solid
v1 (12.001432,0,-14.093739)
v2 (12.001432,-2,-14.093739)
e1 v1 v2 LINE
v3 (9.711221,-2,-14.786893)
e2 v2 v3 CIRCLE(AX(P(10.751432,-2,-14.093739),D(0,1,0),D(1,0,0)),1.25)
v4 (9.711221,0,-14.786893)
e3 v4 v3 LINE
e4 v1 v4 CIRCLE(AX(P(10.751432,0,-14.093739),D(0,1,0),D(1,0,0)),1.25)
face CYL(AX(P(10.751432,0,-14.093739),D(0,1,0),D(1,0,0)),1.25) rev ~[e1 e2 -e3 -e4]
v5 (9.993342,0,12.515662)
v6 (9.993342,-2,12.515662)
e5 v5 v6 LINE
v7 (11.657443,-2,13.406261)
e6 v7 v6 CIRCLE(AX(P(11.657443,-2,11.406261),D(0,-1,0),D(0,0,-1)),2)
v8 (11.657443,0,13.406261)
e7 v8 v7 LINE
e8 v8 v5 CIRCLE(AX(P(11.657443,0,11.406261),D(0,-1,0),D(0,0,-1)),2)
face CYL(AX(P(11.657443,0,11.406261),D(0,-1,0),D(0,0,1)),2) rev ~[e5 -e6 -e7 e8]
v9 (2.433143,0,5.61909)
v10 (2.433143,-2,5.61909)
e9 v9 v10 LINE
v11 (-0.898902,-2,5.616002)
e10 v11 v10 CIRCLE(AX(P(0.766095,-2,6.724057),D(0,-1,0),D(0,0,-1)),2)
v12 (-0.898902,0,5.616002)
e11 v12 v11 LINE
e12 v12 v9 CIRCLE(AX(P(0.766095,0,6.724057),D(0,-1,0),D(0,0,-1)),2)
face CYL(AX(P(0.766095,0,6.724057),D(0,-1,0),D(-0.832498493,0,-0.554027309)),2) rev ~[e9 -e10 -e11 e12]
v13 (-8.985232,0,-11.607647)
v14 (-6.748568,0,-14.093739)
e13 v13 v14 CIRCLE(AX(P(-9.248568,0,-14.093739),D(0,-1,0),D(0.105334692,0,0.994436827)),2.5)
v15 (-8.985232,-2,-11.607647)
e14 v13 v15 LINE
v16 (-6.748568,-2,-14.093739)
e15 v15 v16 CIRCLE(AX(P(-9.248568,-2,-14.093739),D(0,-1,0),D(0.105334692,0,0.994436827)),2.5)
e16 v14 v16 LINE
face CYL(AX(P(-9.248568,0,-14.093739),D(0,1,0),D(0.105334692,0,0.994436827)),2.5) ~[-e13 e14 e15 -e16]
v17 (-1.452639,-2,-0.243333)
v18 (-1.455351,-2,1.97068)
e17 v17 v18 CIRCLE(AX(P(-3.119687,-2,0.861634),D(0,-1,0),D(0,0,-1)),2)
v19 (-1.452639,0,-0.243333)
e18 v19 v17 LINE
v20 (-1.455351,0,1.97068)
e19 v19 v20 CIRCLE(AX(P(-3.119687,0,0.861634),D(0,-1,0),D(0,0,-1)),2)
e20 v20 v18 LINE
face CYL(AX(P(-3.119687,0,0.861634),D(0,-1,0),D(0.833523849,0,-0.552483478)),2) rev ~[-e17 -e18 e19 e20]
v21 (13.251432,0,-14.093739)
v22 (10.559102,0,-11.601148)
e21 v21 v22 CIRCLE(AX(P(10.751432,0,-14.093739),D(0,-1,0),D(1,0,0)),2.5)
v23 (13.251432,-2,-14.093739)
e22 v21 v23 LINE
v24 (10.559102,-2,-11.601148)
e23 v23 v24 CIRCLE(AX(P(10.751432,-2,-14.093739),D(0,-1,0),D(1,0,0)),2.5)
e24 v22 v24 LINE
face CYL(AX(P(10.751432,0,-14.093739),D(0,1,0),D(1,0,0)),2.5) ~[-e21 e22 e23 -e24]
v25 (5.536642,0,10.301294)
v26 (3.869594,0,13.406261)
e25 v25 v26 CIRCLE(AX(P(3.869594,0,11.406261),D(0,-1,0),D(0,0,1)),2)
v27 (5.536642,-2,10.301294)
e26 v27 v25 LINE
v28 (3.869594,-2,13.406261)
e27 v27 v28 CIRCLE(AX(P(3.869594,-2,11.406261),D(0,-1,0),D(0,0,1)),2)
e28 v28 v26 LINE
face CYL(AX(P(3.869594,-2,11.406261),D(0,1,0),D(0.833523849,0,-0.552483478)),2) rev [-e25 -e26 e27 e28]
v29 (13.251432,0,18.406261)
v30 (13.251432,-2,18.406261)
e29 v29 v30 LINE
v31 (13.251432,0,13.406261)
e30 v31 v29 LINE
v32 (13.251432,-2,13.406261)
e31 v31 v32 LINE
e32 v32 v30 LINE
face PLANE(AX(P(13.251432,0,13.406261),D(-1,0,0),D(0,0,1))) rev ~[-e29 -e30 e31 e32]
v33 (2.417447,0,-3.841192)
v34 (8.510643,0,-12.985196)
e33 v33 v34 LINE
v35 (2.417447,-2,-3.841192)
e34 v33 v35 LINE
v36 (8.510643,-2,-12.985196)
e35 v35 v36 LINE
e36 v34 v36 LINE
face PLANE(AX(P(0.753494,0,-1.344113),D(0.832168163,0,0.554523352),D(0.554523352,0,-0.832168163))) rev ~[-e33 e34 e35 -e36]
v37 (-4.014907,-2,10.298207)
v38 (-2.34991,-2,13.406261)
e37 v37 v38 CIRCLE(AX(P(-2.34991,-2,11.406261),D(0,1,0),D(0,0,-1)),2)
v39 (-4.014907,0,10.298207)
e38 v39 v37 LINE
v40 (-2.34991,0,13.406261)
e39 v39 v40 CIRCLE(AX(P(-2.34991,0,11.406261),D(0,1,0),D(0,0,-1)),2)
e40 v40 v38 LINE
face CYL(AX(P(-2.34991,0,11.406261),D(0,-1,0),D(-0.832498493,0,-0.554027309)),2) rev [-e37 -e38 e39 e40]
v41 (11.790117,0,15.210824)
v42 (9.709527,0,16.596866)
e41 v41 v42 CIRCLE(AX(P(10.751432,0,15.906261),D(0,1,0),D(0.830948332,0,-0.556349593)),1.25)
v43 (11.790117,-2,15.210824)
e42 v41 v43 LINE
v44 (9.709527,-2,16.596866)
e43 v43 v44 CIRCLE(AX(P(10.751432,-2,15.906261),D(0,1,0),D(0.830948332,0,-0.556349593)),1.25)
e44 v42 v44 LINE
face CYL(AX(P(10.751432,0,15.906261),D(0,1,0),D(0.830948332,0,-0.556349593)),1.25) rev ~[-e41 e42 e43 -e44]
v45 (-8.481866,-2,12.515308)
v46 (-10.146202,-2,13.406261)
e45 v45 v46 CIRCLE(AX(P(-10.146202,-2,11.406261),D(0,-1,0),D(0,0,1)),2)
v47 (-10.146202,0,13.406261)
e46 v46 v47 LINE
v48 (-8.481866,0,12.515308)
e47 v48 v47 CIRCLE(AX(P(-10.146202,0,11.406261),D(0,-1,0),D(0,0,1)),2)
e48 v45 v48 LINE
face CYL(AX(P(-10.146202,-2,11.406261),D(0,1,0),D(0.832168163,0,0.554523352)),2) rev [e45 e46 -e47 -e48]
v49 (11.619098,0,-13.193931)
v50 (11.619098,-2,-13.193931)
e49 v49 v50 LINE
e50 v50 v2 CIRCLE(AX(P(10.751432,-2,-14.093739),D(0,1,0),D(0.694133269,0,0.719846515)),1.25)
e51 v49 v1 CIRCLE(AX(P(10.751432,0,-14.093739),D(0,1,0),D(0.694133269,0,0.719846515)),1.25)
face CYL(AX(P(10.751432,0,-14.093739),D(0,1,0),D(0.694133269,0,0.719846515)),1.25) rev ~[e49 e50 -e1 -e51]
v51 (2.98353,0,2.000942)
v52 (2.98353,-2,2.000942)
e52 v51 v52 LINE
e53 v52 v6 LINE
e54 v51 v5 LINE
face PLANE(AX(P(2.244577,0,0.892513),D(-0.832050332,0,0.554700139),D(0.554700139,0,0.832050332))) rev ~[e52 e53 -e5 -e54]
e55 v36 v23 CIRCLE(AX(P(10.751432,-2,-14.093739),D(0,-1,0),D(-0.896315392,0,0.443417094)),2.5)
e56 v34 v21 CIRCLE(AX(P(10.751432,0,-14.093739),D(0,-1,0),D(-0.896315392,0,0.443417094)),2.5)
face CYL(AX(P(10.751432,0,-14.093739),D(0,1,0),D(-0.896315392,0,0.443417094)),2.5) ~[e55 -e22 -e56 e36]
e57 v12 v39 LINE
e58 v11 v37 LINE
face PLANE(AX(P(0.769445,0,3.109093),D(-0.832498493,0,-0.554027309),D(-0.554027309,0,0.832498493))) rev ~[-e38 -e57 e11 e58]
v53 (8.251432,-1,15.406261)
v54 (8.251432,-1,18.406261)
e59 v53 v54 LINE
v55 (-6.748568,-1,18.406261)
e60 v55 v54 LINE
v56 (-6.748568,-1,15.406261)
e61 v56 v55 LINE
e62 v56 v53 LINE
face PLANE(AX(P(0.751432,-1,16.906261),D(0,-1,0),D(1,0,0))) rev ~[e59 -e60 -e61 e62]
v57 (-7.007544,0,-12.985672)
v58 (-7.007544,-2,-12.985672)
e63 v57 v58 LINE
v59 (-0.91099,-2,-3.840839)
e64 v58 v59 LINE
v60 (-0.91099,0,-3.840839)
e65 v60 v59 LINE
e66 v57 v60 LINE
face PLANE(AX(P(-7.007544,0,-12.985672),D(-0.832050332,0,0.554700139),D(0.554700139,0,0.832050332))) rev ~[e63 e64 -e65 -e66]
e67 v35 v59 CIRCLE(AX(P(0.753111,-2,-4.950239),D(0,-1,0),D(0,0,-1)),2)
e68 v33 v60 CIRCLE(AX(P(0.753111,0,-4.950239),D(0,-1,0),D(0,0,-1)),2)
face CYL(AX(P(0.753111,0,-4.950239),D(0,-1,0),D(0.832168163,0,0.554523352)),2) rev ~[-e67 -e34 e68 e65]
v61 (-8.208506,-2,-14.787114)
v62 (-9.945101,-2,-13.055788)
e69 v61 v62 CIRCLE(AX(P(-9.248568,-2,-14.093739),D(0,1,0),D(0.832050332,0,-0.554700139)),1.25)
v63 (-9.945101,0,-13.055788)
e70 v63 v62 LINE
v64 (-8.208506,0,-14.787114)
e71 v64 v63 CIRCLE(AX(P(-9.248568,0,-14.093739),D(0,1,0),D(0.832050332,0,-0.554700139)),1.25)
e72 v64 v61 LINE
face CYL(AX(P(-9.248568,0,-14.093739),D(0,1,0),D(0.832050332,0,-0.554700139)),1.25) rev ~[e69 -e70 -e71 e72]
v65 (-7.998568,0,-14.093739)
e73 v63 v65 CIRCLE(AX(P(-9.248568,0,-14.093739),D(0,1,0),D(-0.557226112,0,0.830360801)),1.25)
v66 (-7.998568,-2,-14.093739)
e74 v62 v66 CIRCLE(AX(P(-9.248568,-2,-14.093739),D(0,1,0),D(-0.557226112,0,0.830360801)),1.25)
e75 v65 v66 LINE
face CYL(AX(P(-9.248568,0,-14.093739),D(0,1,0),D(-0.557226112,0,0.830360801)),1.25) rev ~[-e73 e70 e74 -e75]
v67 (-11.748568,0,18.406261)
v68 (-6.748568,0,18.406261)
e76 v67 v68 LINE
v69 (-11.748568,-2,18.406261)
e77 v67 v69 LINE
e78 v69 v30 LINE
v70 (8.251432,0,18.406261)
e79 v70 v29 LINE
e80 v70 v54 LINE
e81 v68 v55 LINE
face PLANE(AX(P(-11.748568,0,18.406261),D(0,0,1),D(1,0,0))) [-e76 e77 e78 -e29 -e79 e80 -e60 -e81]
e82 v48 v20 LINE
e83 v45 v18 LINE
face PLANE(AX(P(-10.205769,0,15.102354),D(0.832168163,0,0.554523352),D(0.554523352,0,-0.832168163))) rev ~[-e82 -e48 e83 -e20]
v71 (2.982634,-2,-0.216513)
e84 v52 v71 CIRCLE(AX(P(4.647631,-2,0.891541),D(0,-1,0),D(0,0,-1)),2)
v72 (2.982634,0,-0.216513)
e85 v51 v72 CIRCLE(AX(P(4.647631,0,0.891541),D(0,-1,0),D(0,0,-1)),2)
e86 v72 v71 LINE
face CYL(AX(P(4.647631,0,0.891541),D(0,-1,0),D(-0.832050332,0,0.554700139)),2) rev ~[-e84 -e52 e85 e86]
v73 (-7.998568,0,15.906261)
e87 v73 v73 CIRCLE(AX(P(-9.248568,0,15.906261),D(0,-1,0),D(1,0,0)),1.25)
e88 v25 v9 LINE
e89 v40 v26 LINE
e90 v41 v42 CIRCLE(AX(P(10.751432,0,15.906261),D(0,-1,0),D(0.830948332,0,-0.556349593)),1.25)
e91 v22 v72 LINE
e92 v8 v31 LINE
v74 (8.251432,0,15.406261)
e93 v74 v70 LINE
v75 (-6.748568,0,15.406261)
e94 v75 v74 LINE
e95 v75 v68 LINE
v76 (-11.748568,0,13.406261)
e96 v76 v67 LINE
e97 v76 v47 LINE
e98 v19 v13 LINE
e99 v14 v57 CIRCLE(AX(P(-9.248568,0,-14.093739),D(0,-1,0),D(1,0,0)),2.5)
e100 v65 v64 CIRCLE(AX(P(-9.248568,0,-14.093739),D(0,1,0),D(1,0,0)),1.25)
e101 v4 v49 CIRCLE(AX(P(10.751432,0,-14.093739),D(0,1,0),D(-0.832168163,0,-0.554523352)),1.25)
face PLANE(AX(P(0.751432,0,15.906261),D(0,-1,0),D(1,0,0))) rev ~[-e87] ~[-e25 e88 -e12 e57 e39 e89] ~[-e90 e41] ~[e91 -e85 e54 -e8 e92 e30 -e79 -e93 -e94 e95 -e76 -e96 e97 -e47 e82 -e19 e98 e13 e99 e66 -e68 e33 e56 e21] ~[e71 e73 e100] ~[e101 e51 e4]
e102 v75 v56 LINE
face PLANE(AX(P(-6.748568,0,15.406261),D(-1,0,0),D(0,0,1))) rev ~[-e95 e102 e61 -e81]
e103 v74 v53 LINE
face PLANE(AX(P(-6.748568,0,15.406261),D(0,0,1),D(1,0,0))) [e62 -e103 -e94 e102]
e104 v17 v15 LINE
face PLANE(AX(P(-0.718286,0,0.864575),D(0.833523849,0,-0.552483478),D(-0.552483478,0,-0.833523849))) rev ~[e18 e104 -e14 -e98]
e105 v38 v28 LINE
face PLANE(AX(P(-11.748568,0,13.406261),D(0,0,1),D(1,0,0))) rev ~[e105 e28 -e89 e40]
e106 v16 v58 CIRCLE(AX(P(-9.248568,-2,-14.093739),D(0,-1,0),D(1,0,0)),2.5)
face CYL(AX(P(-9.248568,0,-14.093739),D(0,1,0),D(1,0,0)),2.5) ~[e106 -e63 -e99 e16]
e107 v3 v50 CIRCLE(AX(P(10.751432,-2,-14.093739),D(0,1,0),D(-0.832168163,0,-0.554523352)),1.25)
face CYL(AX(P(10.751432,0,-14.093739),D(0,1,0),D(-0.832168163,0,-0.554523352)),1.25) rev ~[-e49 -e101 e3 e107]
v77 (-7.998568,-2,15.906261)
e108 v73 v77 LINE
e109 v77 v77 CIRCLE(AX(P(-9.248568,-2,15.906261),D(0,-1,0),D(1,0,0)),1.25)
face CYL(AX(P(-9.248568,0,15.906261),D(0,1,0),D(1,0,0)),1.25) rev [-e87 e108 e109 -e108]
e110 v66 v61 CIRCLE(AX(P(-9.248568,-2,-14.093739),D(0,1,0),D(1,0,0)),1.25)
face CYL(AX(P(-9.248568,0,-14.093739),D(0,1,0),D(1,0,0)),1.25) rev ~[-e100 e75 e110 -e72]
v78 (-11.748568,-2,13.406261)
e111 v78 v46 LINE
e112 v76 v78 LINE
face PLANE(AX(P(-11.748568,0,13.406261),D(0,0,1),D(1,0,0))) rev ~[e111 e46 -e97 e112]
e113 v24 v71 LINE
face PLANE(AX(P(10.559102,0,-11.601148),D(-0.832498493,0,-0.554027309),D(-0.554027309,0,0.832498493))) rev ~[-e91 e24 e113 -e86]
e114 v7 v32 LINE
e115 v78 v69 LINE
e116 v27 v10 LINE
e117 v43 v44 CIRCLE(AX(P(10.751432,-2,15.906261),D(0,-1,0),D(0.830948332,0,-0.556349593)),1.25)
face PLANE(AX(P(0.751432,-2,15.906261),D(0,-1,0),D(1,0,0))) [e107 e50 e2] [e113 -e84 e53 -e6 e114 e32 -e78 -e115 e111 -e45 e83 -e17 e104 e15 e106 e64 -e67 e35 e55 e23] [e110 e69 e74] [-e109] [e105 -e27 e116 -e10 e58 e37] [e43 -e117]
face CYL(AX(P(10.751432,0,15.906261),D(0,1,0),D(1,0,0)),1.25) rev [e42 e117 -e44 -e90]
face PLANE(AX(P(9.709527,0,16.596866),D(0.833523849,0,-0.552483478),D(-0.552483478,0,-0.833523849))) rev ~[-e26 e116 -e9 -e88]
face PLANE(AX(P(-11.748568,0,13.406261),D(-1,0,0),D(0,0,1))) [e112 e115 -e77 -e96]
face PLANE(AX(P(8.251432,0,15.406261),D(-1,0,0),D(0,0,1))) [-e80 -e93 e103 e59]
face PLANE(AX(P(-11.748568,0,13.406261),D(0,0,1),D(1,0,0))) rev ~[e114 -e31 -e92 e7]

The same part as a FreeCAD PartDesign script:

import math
import FreeCAD as App
import Part
import Sketcher


def edges_at(feature, points):
    """Names of the edges that pass closest to the given points."""
    edges = feature.Shape.Edges
    near = lambda p: min(range(len(edges)), key=lambda i: edges[i].distToShape(Part.Vertex(*p))[0])
    return sorted({f"Edge{near(p) + 1}" for p in points})

doc = App.newDocument("Part")
body = doc.addObject("PartDesign::Body", "Body")

# Sketch on XZ plane
sketch1 = body.newObject("Sketcher::SketchObject", "Sketch")
sketch1.AttachmentSupport = (doc.getObject("XZ_Plane"), [""])
sketch1.MapMode = "FlatFace"
sketch1.addGeometry(Part.LineSegment(App.Vector(-11.7, 18.4, 0), App.Vector(-11.7, 13.4, 0)), False)
sketch1.addGeometry(Part.LineSegment(App.Vector(-11.7, 13.4, 0), App.Vector(13.3, 13.4, 0)), False)
sketch1.addGeometry(Part.LineSegment(App.Vector(13.3, 13.4, 0), App.Vector(13.3, 18.4, 0)), False)
sketch1.addGeometry(Part.LineSegment(App.Vector(13.3, 18.4, 0), App.Vector(-11.7, 18.4, 0)), False)
sketch1.addGeometry(Part.Circle(App.Vector(-9.2, 15.9, 0), App.Vector(0, 0, 1), 1.2), False)
sketch1.addGeometry(Part.Circle(App.Vector(10.8, 15.9, 0), App.Vector(0, 0, 1), 1.2), False)
sketch1.addConstraint(Sketcher.Constraint("Coincident", 0, 2, 1, 1))
sketch1.addConstraint(Sketcher.Constraint("Coincident", 1, 2, 2, 1))
sketch1.addConstraint(Sketcher.Constraint("Coincident", 2, 2, 3, 1))
sketch1.addConstraint(Sketcher.Constraint("Coincident", 3, 2, 0, 1))
sketch1.addConstraint(Sketcher.Constraint("Vertical", 0))
sketch1.addConstraint(Sketcher.Constraint("Horizontal", 1))
sketch1.addConstraint(Sketcher.Constraint("Vertical", 2))
sketch1.addConstraint(Sketcher.Constraint("Horizontal", 3))
sketch1.addConstraint(Sketcher.Constraint("Equal", 4, 5))
sketch1.addConstraint(Sketcher.Constraint("Horizontal", 4, 3, 5, 3))
sketch1.addConstraint(Sketcher.Constraint("Diameter", 4, 2.5))
sketch1.addConstraint(Sketcher.Constraint("DistanceX", 1, 1, 1, 2, 25.0))
sketch1.addConstraint(Sketcher.Constraint("DistanceY", 0, 2, 0, 1, 5.0))
sketch1.addConstraint(Sketcher.Constraint("DistanceX", 4, 3, 5, 3, 20.0))
sketch1.addConstraint(Sketcher.Constraint("DistanceX", 0, 2, 4, 3, 2.5))
sketch1.addConstraint(Sketcher.Constraint("DistanceY", 0, 2, 4, 3, 2.5))
sketch1.addConstraint(Sketcher.Constraint("DistanceX", 4, 3, -1, 1, 9.248568))
sketch1.addConstraint(Sketcher.Constraint("DistanceY", -1, 1, 4, 3, 15.906261))
pad1 = body.newObject("PartDesign::Pad", "Pad")
pad1.Profile = sketch1
pad1.Length = 2

# Sketch on XZ plane
sketch2 = body.newObject("Sketcher::SketchObject", "Sketch001")
sketch2.AttachmentSupport = (doc.getObject("XZ_Plane"), [""])
sketch2.MapMode = "FlatFace"
sketch2.addGeometry(Part.LineSegment(App.Vector(-6.7, 18.4, 0), App.Vector(-6.7, 15.4, 0)), False)
sketch2.addGeometry(Part.LineSegment(App.Vector(-6.7, 15.4, 0), App.Vector(8.3, 15.4, 0)), False)
sketch2.addGeometry(Part.LineSegment(App.Vector(8.3, 15.4, 0), App.Vector(8.3, 18.4, 0)), False)
sketch2.addGeometry(Part.LineSegment(App.Vector(8.3, 18.4, 0), App.Vector(-6.7, 18.4, 0)), False)
sketch2.addConstraint(Sketcher.Constraint("Coincident", 0, 2, 1, 1))
sketch2.addConstraint(Sketcher.Constraint("Coincident", 1, 2, 2, 1))
sketch2.addConstraint(Sketcher.Constraint("Coincident", 2, 2, 3, 1))
sketch2.addConstraint(Sketcher.Constraint("Coincident", 3, 2, 0, 1))
sketch2.addConstraint(Sketcher.Constraint("Vertical", 0))
sketch2.addConstraint(Sketcher.Constraint("Horizontal", 1))
sketch2.addConstraint(Sketcher.Constraint("Vertical", 2))
sketch2.addConstraint(Sketcher.Constraint("Horizontal", 3))
sketch2.addConstraint(Sketcher.Constraint("DistanceX", 1, 1, 1, 2, 15.0))
sketch2.addConstraint(Sketcher.Constraint("DistanceY", 0, 2, 0, 1, 3.0))
sketch2.addConstraint(Sketcher.Constraint("DistanceX", 0, 2, -1, 1, 6.748568))
sketch2.addConstraint(Sketcher.Constraint("DistanceY", -1, 1, 0, 2, 15.406261))
pocket1 = body.newObject("PartDesign::Pocket", "Pocket")
pocket1.Profile = sketch2
pocket1.Length = 1
pocket1.Reversed = True

# Sketch on XZ plane
sketch3 = body.newObject("Sketcher::SketchObject", "Sketch002")
sketch3.AttachmentSupport = (doc.getObject("XZ_Plane"), [""])
sketch3.MapMode = "FlatFace"
sketch3.addGeometry(Part.ArcOfCircle(Part.Circle(App.Vector(10.8, 15.9, 0), App.Vector(0, 0, 1), 1.2), math.radians(146), math.radians(326)), False)
sketch3.addGeometry(Part.LineSegment(App.Vector(9.7, 16.6, 0), App.Vector(0.8, 3.1, 0)), False)
sketch3.addGeometry(Part.LineSegment(App.Vector(0.8, 3.1, 0), App.Vector(-8.2, 16.6, 0)), False)
sketch3.addGeometry(Part.ArcOfCircle(Part.Circle(App.Vector(-9.2, 15.9, 0), App.Vector(0, 0, 1), 1.2), math.radians(-140), math.radians(34)), False)
sketch3.addGeometry(Part.LineSegment(App.Vector(-10.2, 15.1, 0), App.Vector(-0.7, 0.9, 0)), False)
sketch3.addGeometry(Part.LineSegment(App.Vector(-0.7, 0.9, 0), App.Vector(-9, -11.6, 0)), False)
sketch3.addGeometry(Part.ArcOfCircle(Part.Circle(App.Vector(-9.2, -14.1, 0), App.Vector(0, 0, 1), 2.5), math.radians(84), math.radians(360)), False)
sketch3.addGeometry(Part.ArcOfCircle(Part.Circle(App.Vector(-9.2, -14.1, 0), App.Vector(0, 0, 1), 2.5), math.radians(0), math.radians(26)), False)
sketch3.addGeometry(Part.LineSegment(App.Vector(-7, -13, 0), App.Vector(0.8, -1.3, 0)), False)
sketch3.addGeometry(Part.LineSegment(App.Vector(0.8, -1.3, 0), App.Vector(8.5, -13, 0)), False)
sketch3.addGeometry(Part.ArcOfCircle(Part.Circle(App.Vector(10.8, -14.1, 0), App.Vector(0, 0, 1), 2.5), math.radians(154), math.radians(360)), False)
sketch3.addGeometry(Part.ArcOfCircle(Part.Circle(App.Vector(10.8, -14.1, 0), App.Vector(0, 0, 1), 2.5), math.radians(0), math.radians(94)), False)
sketch3.addGeometry(Part.LineSegment(App.Vector(10.6, -11.6, 0), App.Vector(2.2, 0.9, 0)), False)
sketch3.addGeometry(Part.LineSegment(App.Vector(2.2, 0.9, 0), App.Vector(11.8, 15.2, 0)), False)
sketch3.addGeometry(Part.ArcOfCircle(Part.Circle(App.Vector(10.8, -14.1, 0), App.Vector(0, 0, 1), 1.2), math.radians(46), math.radians(214)), False)
sketch3.addGeometry(Part.ArcOfCircle(Part.Circle(App.Vector(10.8, -14.1, 0), App.Vector(0, 0, 1), 1.2), math.radians(0), math.radians(46)), False)
sketch3.addGeometry(Part.ArcOfCircle(Part.Circle(App.Vector(10.8, -14.1, 0), App.Vector(0, 0, 1), 1.2), math.radians(-146), math.radians(0)), False)
sketch3.addGeometry(Part.ArcOfCircle(Part.Circle(App.Vector(-9.2, -14.1, 0), App.Vector(0, 0, 1), 1.2), math.radians(0), math.radians(124)), False)
sketch3.addGeometry(Part.ArcOfCircle(Part.Circle(App.Vector(-9.2, -14.1, 0), App.Vector(0, 0, 1), 1.2), math.radians(-34), math.radians(0)), False)
sketch3.addGeometry(Part.ArcOfCircle(Part.Circle(App.Vector(-9.2, -14.1, 0), App.Vector(0, 0, 1), 1.2), math.radians(124), math.radians(326)), False)
sketch3.addConstraint(Sketcher.Constraint("Tangent", 0, 1, 1, 1))
sketch3.addConstraint(Sketcher.Constraint("Coincident", 1, 2, 2, 1))
sketch3.addConstraint(Sketcher.Constraint("Tangent", 2, 2, 3, 2))
sketch3.addConstraint(Sketcher.Constraint("Coincident", 3, 1, 4, 1))
sketch3.addConstraint(Sketcher.Constraint("Coincident", 4, 2, 5, 1))
sketch3.addConstraint(Sketcher.Constraint("Coincident", 5, 2, 6, 1))
sketch3.addConstraint(Sketcher.Constraint("Tangent", 6, 2, 7, 1))
sketch3.addConstraint(Sketcher.Constraint("Coincident", 7, 2, 8, 1))
sketch3.addConstraint(Sketcher.Constraint("Coincident", 8, 2, 9, 1))
sketch3.addConstraint(Sketcher.Constraint("Coincident", 9, 2, 10, 1))
sketch3.addConstraint(Sketcher.Constraint("Tangent", 10, 2, 11, 1))
sketch3.addConstraint(Sketcher.Constraint("Coincident", 11, 2, 12, 1))
sketch3.addConstraint(Sketcher.Constraint("Coincident", 12, 2, 13, 1))
sketch3.addConstraint(Sketcher.Constraint("Coincident", 13, 2, 0, 2))
sketch3.addConstraint(Sketcher.Constraint("Tangent", 14, 1, 15, 2))
sketch3.addConstraint(Sketcher.Constraint("Tangent", 15, 1, 16, 2))
sketch3.addConstraint(Sketcher.Constraint("Tangent", 16, 1, 14, 2))
sketch3.addConstraint(Sketcher.Constraint("Tangent", 17, 1, 18, 2))
sketch3.addConstraint(Sketcher.Constraint("Tangent", 18, 1, 19, 2))
sketch3.addConstraint(Sketcher.Constraint("Tangent", 19, 1, 17, 2))
sketch3.addConstraint(Sketcher.Constraint("Coincident", 14, 3, 10, 3))
sketch3.addConstraint(Sketcher.Constraint("Coincident", 17, 3, 6, 3))
sketch3.addConstraint(Sketcher.Constraint("Equal", 0, 3))
sketch3.addConstraint(Sketcher.Constraint("Equal", 6, 7))
sketch3.addConstraint(Sketcher.Constraint("Equal", 7, 10))
sketch3.addConstraint(Sketcher.Constraint("Equal", 10, 11))
sketch3.addConstraint(Sketcher.Constraint("Equal", 3, 14))
sketch3.addConstraint(Sketcher.Constraint("Equal", 16, 17))
sketch3.addConstraint(Sketcher.Constraint("Parallel", 1, 5))
sketch3.addConstraint(Sketcher.Constraint("Parallel", 4, 9))
sketch3.addConstraint(Sketcher.Constraint("Parallel", 2, 12))
sketch3.addConstraint(Sketcher.Constraint("Parallel", 8, 13))
sketch3.addConstraint(Sketcher.Constraint("Horizontal", 0, 3, 3, 3))
sketch3.addConstraint(Sketcher.Constraint("Horizontal", 7, 3, 10, 3))
sketch3.addConstraint(Sketcher.Constraint("Horizontal", 19, 3, 6, 2))
sketch3.addConstraint(Sketcher.Constraint("Horizontal", 6, 2, 10, 2))
sketch3.addConstraint(Sketcher.Constraint("Horizontal", 10, 2, 15, 1))
sketch3.addConstraint(Sketcher.Constraint("Horizontal", 15, 1, 17, 1))
sketch3.addConstraint(Sketcher.Constraint("Vertical", 3, 3, 6, 3))
sketch3.addConstraint(Sketcher.Constraint("Vertical", 0, 3, 10, 3))
sketch3.addConstraint(Sketcher.Constraint("Radius", 6, 2.5))
sketch3.addConstraint(Sketcher.Constraint("Radius", 0, 1.25))
sketch3.addConstraint(Sketcher.Constraint("DistanceX", 3, 3, 0, 3, 20.0))
sketch3.addConstraint(Sketcher.Constraint("DistanceY", 6, 3, 3, 3, 30.0))
sketch3.addConstraint(Sketcher.Constraint("DistanceX", -1, 1, 14, 1, 11.619098))
sketch3.addConstraint(Sketcher.Constraint("DistanceX", 19, 1, -1, 1, 9.945101))
sketch3.addConstraint(Sketcher.Constraint("DistanceX", 3, 1, 3, 3, 0.957201))
sketch3.addConstraint(Sketcher.Constraint("Distance", 9, 13.988859))
sketch3.addConstraint(Sketcher.Constraint("DistanceX", -1, 1, 0, 3, 10.751432))
sketch3.addConstraint(Sketcher.Constraint("DistanceY", -1, 1, 0, 3, 15.906261))
sketch3.addConstraint(Sketcher.Constraint("DistanceX", 5, 2, -1, 1, 8.985232))
sketch3.addConstraint(Sketcher.Constraint("DistanceX", -1, 1, 16, 1, 9.711221))
sketch3.addConstraint(Sketcher.Constraint("DistanceY", 1, 2, 0, 3, 12.797168))
sketch3.addConstraint(Sketcher.Constraint("DistanceX", 2, 2, 1, 2, 8.97739))
sketch3.addConstraint(Sketcher.Constraint("DistanceX", 4, 2, 1, 2, 1.487731))
sketch3.addConstraint(Sketcher.Constraint("DistanceX", 4, 2, 8, 2, 1.47178))
sketch3.addConstraint(Sketcher.Constraint("DistanceX", 7, 2, 8, 2, 7.761038))
sketch3.addConstraint(Sketcher.Constraint("DistanceX", 9, 2, 11, 2, 2.048459))
sketch3.addConstraint(Sketcher.Constraint("DistanceX", 0, 1, 13, 2, 2.08059))
sketch3.addConstraint(Sketcher.Constraint("DistanceX", 18, 1, -1, 1, 8.208506))
pad2 = body.newObject("PartDesign::Pad", "Pad001")
pad2.Profile = sketch3
pad2.Length = 2
doc.recompute()

fillet = body.newObject("PartDesign::Fillet", "Fillet")
fillet.Base = (pad2, edges_at(pad2, [
    (0.769, -1, 3.109),
    (-0.718, -1, 0.865),
    (2.245, -1, 0.893),
    (0.753, -1, -1.344),
    (7.595, -1, 13.406),
    (-6.083, -1, 13.406),
    (-9.076, -1, 13.406),
    (10.587, -1, 13.406),
]))
fillet.Radius = 2

doc.recompute()
